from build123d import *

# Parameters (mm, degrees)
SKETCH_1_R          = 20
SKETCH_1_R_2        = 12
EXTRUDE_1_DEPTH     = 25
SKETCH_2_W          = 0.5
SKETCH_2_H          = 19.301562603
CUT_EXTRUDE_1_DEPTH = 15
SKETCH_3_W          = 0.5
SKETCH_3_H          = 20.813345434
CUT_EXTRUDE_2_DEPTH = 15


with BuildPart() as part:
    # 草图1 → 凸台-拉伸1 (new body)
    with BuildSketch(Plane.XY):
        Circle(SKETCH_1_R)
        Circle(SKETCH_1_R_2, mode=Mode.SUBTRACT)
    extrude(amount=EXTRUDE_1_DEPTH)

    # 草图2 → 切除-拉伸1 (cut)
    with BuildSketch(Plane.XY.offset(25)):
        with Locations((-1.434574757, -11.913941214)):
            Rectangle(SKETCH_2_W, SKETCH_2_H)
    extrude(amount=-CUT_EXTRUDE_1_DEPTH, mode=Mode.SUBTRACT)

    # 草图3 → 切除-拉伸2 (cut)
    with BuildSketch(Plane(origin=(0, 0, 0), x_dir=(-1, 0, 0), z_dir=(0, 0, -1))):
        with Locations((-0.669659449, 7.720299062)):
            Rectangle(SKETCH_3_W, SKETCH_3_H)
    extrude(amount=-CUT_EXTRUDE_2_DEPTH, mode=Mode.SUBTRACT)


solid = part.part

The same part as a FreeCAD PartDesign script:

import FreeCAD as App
import Part
import Sketcher


def add_polygon(sketch, points):
    """Adds a closed chain of lines whose ends are joined by coincident constraints."""
    first, n = sketch.GeometryCount, len(points)
    for a, b in zip(points, points[1:] + points[:1]):
        sketch.addGeometry(Part.LineSegment(App.Vector(*a, 0), App.Vector(*b, 0)), False)
    for i in range(n):
        sketch.addConstraint(Sketcher.Constraint("Coincident", first + i, 2, first + (i + 1) % n, 1))

doc = App.newDocument("Part")
body = doc.addObject("PartDesign::Body", "Body")

# Sketch on XY plane
sketch1 = body.newObject("Sketcher::SketchObject", "Sketch")
sketch1.AttachmentSupport = (doc.getObject("XY_Plane"), [""])
sketch1.MapMode = "FlatFace"
sketch1.addGeometry(Part.Circle(App.Vector(0, 0, 0), App.Vector(0, 0, 1), 20), False)
sketch1.addGeometry(Part.Circle(App.Vector(0, 0, 0), App.Vector(0, 0, 1), 12), False)
sketch1.addConstraint(Sketcher.Constraint("Coincident", 0, 3, -1, 1))
sketch1.addConstraint(Sketcher.Constraint("Coincident", 1, 3, -1, 1))
sketch1.addConstraint(Sketcher.Constraint("Diameter", 0, 40.0))
sketch1.addConstraint(Sketcher.Constraint("Diameter", 1, 24.0))
pad1 = body.newObject("PartDesign::Pad", "Pad")
pad1.Profile = sketch1
pad1.Length = 25

# Sketch on XY plane
sketch2 = body.newObject("Sketcher::SketchObject", "Sketch001")
sketch2.AttachmentSupport = (doc.getObject("XY_Plane"), [""])
sketch2.MapMode = "FlatFace"
sketch2.AttachmentOffset = App.Placement(App.Vector(0, 0, 25), App.Rotation())
add_polygon(sketch2, [(-1.7, -2.3), (-1.7, -21.6), (-1.2, -21.6), (-1.2, -2.3)])  # lines 0-3
sketch2.addConstraint(Sketcher.Constraint("Vertical", 0))
sketch2.addConstraint(Sketcher.Constraint("Horizontal", 1))
sketch2.addConstraint(Sketcher.Constraint("Vertical", 2))
sketch2.addConstraint(Sketcher.Constraint("Horizontal", 3))
sketch2.addConstraint(Sketcher.Constraint("DistanceX", 1, 1, 1, 2, 0.5))
sketch2.addConstraint(Sketcher.Constraint("DistanceY", 0, 2, 0, 1, 19.301563))
sketch2.addConstraint(Sketcher.Constraint("DistanceY", 2, 2, -1, 1, 2.26316))
sketch2.addConstraint(Sketcher.Constraint("DistanceX", 0, 2, -1, 1, 1.684575))
pocket1 = body.newObject("PartDesign::Pocket", "Pocket")
pocket1.Profile = sketch2
pocket1.Length = 15

# Sketch on XY plane
sketch3 = body.newObject("Sketcher::SketchObject", "Sketch002")
sketch3.AttachmentSupport = (doc.getObject("XY_Plane"), [""])
sketch3.MapMode = "FlatFace"
add_polygon(sketch3, [(0.92, 18.13), (0.92, -2.69), (0.42, -2.69), (0.42, 18.13)])  # lines 0-3
sketch3.addConstraint(Sketcher.Constraint("Vertical", 0))
sketch3.addConstraint(Sketcher.Constraint("Horizontal", 1))
sketch3.addConstraint(Sketcher.Constraint("Vertical", 2))
sketch3.addConstraint(Sketcher.Constraint("Horizontal", 3))
sketch3.addConstraint(Sketcher.Constraint("DistanceX", 1, 2, 1, 1, 0.5))
sketch3.addConstraint(Sketcher.Constraint("DistanceY", 0, 2, 0, 1, 20.813345))
sketch3.addConstraint(Sketcher.Constraint("DistanceX", -1, 1, 0, 2, 0.919659))
sketch3.addConstraint(Sketcher.Constraint("DistanceY", -1, 1, 2, 2, 18.126972))
pocket2 = body.newObject("PartDesign::Pocket", "Pocket001")
pocket2.Profile = sketch3
pocket2.Length = 15
pocket2.Reversed = True

doc.recompute()
